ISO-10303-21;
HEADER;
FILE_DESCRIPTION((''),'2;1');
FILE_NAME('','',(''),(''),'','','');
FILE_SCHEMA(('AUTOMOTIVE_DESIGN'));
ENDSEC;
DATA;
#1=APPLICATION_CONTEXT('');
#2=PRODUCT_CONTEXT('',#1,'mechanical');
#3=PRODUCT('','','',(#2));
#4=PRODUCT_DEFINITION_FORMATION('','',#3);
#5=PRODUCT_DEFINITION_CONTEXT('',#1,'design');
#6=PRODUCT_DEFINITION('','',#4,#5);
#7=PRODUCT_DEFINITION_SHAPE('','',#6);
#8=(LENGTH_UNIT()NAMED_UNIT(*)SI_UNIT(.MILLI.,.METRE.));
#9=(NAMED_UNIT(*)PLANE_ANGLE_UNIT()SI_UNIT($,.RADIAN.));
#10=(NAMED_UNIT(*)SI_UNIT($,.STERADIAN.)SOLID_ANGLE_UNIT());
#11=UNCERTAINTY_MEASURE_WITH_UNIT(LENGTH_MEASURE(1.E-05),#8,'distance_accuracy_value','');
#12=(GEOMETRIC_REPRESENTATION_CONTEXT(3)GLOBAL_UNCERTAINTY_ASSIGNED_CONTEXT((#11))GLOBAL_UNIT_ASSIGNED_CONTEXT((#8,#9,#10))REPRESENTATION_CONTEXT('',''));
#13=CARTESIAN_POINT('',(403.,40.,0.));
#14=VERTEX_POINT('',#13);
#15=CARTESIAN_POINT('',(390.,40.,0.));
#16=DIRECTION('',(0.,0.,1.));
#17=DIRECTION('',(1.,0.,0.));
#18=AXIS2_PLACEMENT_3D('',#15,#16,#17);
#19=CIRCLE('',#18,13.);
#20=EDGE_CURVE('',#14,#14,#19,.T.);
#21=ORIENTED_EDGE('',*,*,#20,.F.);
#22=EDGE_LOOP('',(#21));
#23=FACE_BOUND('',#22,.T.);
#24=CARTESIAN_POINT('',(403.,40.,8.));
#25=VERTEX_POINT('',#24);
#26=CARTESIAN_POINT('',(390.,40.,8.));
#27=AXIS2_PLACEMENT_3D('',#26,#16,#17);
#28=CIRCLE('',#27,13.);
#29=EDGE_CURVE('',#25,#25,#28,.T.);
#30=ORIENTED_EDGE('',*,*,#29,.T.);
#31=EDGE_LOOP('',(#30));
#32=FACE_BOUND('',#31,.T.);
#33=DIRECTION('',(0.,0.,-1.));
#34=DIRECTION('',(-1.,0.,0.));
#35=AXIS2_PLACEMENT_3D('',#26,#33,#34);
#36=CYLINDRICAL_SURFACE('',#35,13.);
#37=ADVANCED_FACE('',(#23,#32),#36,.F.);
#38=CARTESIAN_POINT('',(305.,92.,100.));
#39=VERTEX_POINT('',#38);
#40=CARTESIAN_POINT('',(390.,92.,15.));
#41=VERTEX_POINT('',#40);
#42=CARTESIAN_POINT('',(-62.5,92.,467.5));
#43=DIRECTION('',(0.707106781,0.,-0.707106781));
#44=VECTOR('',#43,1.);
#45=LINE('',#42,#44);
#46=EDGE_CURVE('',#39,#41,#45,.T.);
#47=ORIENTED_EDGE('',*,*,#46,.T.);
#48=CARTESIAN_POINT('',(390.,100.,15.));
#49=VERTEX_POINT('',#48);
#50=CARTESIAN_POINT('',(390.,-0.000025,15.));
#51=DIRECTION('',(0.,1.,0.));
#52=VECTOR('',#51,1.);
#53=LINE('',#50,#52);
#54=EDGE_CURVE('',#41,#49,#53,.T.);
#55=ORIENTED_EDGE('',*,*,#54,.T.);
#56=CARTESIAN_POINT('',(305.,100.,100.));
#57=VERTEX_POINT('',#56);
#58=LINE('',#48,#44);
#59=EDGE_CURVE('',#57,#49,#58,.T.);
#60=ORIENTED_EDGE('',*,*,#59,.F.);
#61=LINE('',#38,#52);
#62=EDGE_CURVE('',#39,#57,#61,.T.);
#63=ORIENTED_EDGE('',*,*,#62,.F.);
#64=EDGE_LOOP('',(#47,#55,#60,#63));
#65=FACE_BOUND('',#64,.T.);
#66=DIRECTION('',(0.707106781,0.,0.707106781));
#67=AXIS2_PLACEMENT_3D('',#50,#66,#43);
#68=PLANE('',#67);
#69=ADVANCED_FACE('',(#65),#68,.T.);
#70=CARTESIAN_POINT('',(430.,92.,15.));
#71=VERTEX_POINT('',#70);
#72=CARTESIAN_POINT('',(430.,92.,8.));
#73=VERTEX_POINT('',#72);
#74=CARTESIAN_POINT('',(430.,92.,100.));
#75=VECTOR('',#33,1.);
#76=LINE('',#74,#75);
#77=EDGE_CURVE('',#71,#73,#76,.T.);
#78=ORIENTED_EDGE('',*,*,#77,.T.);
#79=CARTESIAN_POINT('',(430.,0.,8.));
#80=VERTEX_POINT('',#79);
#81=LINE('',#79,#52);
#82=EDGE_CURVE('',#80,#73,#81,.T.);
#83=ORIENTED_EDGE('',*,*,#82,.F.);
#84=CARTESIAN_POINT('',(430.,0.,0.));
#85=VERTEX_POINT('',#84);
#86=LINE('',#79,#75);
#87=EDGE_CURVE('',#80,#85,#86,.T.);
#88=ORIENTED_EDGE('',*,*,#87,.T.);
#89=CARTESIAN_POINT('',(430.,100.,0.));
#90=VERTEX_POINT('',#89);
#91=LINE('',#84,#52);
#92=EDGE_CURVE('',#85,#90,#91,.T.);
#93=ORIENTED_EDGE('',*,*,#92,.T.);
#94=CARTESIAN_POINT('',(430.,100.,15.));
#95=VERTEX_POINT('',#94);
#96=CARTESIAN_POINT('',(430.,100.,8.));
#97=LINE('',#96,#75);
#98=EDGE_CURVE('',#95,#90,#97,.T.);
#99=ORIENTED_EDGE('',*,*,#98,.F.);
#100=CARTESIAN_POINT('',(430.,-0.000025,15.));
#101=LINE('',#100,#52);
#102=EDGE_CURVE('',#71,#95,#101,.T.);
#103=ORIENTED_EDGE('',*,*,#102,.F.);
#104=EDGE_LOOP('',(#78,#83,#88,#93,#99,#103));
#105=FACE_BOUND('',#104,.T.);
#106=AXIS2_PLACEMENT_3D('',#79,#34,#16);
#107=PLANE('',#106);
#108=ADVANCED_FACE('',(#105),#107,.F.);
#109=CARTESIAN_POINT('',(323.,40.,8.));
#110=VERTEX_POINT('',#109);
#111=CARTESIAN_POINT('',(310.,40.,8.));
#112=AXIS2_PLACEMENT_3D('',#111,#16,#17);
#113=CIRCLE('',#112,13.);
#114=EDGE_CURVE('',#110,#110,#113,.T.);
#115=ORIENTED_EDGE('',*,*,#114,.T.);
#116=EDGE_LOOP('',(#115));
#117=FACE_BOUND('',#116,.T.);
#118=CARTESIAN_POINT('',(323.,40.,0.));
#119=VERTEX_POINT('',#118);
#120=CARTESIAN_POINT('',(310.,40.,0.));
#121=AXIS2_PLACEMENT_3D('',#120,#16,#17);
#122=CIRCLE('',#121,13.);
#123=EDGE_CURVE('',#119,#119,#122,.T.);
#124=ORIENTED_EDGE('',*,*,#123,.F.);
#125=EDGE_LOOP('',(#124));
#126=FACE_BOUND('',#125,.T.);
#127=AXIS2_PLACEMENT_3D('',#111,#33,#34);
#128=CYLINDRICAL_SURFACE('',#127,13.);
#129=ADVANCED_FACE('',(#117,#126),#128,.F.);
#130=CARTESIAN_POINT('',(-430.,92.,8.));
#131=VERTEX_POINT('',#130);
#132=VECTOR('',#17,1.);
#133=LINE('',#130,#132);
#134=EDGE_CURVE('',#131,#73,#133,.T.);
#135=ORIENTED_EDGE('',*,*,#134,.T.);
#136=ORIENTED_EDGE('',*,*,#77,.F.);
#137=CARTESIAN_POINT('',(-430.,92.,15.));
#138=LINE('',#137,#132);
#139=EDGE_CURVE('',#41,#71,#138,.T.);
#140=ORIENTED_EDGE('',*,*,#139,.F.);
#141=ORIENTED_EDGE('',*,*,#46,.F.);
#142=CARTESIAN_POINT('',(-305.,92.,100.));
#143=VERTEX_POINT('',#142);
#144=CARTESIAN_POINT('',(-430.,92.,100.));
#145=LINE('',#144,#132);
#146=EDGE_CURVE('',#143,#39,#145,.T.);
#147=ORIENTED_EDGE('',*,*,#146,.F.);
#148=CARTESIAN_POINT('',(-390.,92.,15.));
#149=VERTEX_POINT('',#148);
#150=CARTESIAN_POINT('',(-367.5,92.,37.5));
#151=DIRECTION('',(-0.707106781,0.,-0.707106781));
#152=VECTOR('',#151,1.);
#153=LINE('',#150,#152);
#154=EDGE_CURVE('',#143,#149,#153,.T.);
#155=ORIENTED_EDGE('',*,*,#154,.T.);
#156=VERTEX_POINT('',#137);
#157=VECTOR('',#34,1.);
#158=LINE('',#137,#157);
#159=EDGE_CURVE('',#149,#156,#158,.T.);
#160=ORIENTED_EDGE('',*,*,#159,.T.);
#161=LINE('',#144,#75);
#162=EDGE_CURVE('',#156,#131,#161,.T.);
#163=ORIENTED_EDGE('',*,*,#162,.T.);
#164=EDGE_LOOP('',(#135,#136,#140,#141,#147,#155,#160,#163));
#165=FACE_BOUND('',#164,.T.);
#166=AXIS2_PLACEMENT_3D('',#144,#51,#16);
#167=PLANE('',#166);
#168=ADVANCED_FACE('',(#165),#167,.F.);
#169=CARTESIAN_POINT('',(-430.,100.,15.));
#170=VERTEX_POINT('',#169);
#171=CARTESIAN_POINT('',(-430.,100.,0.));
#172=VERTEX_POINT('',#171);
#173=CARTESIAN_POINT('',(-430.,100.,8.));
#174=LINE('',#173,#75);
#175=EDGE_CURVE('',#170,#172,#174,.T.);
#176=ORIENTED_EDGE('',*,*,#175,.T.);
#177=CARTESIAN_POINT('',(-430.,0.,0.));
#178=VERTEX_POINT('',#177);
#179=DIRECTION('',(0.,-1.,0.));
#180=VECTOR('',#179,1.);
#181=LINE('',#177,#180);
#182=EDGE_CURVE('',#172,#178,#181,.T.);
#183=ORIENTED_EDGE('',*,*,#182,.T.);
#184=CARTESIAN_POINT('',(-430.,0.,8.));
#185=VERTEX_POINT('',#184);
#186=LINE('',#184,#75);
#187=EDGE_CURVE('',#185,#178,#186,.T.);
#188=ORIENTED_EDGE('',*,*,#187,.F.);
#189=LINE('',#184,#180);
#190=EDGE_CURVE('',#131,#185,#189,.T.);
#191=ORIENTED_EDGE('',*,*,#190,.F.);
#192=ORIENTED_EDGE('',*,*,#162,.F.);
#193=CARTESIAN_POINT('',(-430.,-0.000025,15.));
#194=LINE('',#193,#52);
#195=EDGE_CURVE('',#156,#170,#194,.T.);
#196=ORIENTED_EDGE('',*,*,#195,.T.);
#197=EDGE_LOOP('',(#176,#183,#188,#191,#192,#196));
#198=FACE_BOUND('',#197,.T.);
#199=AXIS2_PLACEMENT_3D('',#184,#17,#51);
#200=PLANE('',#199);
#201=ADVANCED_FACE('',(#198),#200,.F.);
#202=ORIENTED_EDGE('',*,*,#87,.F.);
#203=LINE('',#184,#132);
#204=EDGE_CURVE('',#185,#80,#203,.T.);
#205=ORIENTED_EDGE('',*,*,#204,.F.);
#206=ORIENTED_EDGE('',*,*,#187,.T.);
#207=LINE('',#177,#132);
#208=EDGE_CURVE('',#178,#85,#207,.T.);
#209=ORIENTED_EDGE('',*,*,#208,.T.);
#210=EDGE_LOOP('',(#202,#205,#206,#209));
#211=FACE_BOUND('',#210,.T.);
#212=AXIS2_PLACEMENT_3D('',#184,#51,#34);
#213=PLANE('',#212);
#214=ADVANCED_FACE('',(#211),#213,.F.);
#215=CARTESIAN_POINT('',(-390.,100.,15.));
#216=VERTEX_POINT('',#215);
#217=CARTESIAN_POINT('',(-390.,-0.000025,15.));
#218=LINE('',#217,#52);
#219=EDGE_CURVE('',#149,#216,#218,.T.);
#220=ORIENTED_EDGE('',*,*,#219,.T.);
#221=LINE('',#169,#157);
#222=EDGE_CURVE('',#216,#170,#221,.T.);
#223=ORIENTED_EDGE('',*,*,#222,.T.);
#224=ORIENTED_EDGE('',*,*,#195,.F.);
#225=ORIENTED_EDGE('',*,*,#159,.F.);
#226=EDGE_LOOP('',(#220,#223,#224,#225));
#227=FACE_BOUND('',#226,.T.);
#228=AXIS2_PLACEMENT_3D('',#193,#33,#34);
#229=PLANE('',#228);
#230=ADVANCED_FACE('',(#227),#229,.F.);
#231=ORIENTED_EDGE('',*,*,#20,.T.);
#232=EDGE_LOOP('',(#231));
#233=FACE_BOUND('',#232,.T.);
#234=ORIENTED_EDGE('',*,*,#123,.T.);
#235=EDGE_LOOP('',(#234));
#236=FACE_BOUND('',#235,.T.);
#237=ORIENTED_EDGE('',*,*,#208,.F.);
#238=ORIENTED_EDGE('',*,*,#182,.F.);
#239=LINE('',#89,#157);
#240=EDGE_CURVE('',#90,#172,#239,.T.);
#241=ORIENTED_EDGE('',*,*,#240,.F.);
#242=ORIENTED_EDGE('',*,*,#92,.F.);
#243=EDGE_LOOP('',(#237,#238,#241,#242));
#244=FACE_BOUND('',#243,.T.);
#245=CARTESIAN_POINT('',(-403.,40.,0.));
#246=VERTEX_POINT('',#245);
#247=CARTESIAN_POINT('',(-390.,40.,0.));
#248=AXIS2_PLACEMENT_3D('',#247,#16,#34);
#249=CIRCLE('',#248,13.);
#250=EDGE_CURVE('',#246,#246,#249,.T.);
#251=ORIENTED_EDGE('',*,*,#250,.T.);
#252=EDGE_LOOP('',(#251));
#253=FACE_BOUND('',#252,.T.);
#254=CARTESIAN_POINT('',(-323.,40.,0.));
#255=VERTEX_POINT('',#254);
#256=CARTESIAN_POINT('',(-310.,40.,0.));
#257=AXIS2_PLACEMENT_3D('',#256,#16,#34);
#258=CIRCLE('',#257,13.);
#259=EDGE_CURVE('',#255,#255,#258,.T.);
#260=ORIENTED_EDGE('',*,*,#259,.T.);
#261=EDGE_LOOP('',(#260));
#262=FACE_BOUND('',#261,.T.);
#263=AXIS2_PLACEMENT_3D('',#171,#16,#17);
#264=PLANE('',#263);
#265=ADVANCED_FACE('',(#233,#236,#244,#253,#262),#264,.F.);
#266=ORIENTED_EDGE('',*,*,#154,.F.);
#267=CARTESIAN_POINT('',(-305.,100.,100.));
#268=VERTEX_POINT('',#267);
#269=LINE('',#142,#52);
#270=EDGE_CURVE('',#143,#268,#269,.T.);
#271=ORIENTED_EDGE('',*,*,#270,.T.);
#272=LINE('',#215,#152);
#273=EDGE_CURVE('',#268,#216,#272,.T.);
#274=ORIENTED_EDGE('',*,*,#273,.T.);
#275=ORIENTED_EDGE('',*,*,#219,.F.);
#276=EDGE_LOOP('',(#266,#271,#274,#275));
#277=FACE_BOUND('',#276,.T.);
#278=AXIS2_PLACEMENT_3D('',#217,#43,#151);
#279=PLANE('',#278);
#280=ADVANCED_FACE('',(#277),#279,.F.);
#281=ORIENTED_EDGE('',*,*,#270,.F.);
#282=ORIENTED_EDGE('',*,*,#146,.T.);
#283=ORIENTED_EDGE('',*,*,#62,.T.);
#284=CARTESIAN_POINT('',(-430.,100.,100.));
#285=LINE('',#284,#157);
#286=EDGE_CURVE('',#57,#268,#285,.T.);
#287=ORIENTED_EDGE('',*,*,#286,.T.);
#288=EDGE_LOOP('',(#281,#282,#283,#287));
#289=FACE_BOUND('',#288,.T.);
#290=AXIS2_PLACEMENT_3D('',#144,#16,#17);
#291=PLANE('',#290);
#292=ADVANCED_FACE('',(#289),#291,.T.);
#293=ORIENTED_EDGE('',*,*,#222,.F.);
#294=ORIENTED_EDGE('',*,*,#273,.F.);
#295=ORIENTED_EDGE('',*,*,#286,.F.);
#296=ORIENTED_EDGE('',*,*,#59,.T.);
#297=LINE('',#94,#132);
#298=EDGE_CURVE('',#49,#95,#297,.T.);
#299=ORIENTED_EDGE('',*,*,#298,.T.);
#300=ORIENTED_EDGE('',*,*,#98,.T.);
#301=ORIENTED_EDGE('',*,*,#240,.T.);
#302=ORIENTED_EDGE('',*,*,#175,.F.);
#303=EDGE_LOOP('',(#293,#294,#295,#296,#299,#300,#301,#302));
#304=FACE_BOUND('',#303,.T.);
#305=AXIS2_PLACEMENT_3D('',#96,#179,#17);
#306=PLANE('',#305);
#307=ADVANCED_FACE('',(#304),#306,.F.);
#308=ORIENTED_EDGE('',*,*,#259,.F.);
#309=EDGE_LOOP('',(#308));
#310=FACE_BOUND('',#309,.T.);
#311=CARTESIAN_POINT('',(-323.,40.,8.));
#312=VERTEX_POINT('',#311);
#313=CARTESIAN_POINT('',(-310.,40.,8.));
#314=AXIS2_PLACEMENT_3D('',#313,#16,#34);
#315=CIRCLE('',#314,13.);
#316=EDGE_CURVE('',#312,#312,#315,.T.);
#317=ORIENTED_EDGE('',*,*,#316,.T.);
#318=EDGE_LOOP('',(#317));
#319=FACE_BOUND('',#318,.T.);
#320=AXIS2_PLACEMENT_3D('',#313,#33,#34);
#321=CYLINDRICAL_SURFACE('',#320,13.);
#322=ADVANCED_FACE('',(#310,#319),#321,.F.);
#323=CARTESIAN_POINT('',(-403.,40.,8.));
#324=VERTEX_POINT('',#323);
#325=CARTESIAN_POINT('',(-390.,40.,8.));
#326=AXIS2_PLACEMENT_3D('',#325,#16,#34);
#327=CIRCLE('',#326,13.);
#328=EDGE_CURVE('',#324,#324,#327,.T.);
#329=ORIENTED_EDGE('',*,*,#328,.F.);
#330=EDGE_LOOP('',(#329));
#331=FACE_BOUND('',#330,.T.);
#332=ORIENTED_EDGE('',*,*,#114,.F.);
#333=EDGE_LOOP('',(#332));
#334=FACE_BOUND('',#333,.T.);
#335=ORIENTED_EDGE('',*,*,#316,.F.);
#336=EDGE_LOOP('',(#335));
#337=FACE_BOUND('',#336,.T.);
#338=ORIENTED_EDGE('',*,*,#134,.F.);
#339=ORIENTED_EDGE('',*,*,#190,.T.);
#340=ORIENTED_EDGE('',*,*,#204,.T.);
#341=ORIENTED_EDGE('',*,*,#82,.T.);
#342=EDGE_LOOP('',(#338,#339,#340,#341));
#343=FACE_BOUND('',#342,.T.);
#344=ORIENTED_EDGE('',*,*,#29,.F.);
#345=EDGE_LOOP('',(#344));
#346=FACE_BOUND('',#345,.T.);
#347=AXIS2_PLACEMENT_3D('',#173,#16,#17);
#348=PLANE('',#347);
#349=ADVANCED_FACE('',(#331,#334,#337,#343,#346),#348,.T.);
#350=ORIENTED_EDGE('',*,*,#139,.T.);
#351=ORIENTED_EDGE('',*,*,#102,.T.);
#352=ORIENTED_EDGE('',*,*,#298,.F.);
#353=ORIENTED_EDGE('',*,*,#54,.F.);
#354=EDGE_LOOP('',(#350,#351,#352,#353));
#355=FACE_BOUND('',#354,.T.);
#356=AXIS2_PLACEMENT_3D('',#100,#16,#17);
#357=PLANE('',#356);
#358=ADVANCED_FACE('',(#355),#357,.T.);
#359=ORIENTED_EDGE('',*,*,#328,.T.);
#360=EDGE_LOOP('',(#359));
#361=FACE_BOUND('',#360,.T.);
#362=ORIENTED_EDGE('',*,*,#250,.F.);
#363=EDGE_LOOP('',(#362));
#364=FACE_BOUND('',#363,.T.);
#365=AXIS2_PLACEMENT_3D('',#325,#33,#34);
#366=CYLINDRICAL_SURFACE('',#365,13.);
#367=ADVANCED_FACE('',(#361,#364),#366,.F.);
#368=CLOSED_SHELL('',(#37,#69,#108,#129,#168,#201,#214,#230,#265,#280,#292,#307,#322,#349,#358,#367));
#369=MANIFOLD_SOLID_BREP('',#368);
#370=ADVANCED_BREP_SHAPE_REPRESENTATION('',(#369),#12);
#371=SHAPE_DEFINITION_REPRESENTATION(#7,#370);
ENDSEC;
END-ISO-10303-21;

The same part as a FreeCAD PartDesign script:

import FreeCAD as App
import Part
import Sketcher
from FreeCAD import Vector
Q = App.Units.Quantity


def add_polygon(sketch, points):
    """Adds a closed chain of lines whose ends are joined by coincident constraints."""
    first, n = sketch.GeometryCount, len(points)
    for a, b in zip(points, points[1:] + points[:1]):
        sketch.addGeometry(Part.LineSegment(App.Vector(*a, 0), App.Vector(*b, 0)), False)
    for i in range(n):
        sketch.addConstraint(Sketcher.Constraint("Coincident", first + i, 2, first + (i + 1) % n, 1))

doc = App.newDocument("Part")
body = doc.addObject("PartDesign::Body", "Body")

# Sketch on XY plane
sketch1 = body.newObject("Sketcher::SketchObject", "Sketch")
sketch1.AttachmentSupport = (doc.getObject("XY_Plane"), [""])
sketch1.MapMode = "FlatFace"
add_polygon(sketch1, [(-430, 100), (-430, 0), (430, 0), (430, 100)])  # lines 0-3
sketch1.addGeometry(Part.Circle(Vector(-390, 40, 0), Vector(0, 0, 1), 13), False)  # 4
sketch1.addGeometry(Part.Circle(Vector(-310, 40, 0), Vector(0, 0, 1), 13), False)  # 5
sketch1.addGeometry(Part.Circle(Vector(310, 40, 0), Vector(0, 0, 1), 13), False)  # 6
sketch1.addGeometry(Part.Circle(Vector(390, 40, 0), Vector(0, 0, 1), 13), False)  # 7
sketch1.addConstraint([
    Sketcher.Constraint("Vertical", 0),
    Sketcher.Constraint("Horizontal", 1),
    Sketcher.Constraint("Vertical", 2),
    Sketcher.Constraint("Horizontal", 3),
    Sketcher.Constraint("Equal", 4, 5),
    Sketcher.Constraint("Equal", 5, 6),
    Sketcher.Constraint("Equal", 6, 7),
    Sketcher.Constraint("Symmetric", 0, 2, 1, 2, -1, 1),
    Sketcher.Constraint("Symmetric", 5, 3, 6, 3, -2),
    Sketcher.Constraint("Symmetric", 4, 3, 7, 3, -2),
    Sketcher.Constraint("Horizontal", 4, 3, 5, 3),
    Sketcher.Constraint("Diameter", 4, Q("26 mm")),
    Sketcher.Constraint("DistanceX", 1, 1, 1, 2, Q("860 mm")),
    Sketcher.Constraint("DistanceY", 0, 2, 0, 1, Q("100 mm")),
    Sketcher.Constraint("DistanceX", 4, 3, -1, 1, Q("390 mm")),
    Sketcher.Constraint("DistanceY", -1, 1, 4, 3, Q("40 mm")),
    Sketcher.Constraint("DistanceX", 5, 3, -1, 1, Q("310 mm")),
])
pad1 = body.newObject("PartDesign::Pad", "Pad")
pad1.Profile = sketch1
pad1.Length = 8

# Sketch on XY plane
sketch2 = body.newObject("Sketcher::SketchObject", "Sketch001")
sketch2.AttachmentSupport = (doc.getObject("XY_Plane"), [""])
sketch2.MapMode = "FlatFace"
sketch2.AttachmentOffset = App.Placement(Vector(0, 0, 8), App.Rotation())
add_polygon(sketch2, [(-430, 100), (-430, 92), (430, 92), (430, 100)])  # lines 0-3
sketch2.addConstraint([
    Sketcher.Constraint("Vertical", 0),
    Sketcher.Constraint("Horizontal", 1),
    Sketcher.Constraint("Vertical", 2),
    Sketcher.Constraint("Horizontal", 3),
    Sketcher.Constraint("DistanceX", 1, 1, 1, 2, Q("860 mm")),
    Sketcher.Constraint("DistanceY", 0, 2, 0, 1, Q("8 mm")),
    Sketcher.Constraint("DistanceX", 0, 2, -1, 1, Q("430 mm")),
    Sketcher.Constraint("DistanceY", -1, 1, 0, 2, Q("92 mm")),
])
pad2 = body.newObject("PartDesign::Pad", "Pad001")
pad2.Profile = sketch2
pad2.Length = 92

# Sketch on XZ plane
sketch3 = body.newObject("Sketcher::SketchObject", "Sketch002")
sketch3.AttachmentSupport = (doc.getObject("XZ_Plane"), [""])
sketch3.MapMode = "FlatFace"
sketch3.AttachmentOffset = App.Placement(Vector(0, 0, -100), App.Rotation())
add_polygon(sketch3, [(-390, 15), (-430, 15), (-430, 100), (-305, 100)])  # lines 0-3
sketch3.addConstraint([
    Sketcher.Constraint("Horizontal", 0),
    Sketcher.Constraint("Vertical", 1),
    Sketcher.Constraint("Horizontal", 2),
    Sketcher.Constraint("DistanceX", 0, 2, 0, 1, Q("40 mm")),
    Sketcher.Constraint("DistanceX", 2, 1, 2, 2, Q("125 mm")),
    Sketcher.Constraint("DistanceY", 1, 1, 1, 2, Q("85 mm")),
    Sketcher.Constraint("DistanceX", 0, 2, -1, 1, Q("430 mm")),
    Sketcher.Constraint("DistanceY", -1, 1, 0, 2, Q("15 mm")),
])
pocket1 = body.newObject("PartDesign::Pocket", "Pocket")
pocket1.Profile = sketch3
pocket1.Type = "ThroughAll"
pocket1.Reversed = True
doc.recompute()

mirrored = body.newObject("PartDesign::Mirrored", "Mirrored")
mirrored.Originals = [pocket1]
mirrored.MirrorPlane = (doc.getObject("YZ_Plane"), [""])
body.Tip = mirrored

doc.recompute()
